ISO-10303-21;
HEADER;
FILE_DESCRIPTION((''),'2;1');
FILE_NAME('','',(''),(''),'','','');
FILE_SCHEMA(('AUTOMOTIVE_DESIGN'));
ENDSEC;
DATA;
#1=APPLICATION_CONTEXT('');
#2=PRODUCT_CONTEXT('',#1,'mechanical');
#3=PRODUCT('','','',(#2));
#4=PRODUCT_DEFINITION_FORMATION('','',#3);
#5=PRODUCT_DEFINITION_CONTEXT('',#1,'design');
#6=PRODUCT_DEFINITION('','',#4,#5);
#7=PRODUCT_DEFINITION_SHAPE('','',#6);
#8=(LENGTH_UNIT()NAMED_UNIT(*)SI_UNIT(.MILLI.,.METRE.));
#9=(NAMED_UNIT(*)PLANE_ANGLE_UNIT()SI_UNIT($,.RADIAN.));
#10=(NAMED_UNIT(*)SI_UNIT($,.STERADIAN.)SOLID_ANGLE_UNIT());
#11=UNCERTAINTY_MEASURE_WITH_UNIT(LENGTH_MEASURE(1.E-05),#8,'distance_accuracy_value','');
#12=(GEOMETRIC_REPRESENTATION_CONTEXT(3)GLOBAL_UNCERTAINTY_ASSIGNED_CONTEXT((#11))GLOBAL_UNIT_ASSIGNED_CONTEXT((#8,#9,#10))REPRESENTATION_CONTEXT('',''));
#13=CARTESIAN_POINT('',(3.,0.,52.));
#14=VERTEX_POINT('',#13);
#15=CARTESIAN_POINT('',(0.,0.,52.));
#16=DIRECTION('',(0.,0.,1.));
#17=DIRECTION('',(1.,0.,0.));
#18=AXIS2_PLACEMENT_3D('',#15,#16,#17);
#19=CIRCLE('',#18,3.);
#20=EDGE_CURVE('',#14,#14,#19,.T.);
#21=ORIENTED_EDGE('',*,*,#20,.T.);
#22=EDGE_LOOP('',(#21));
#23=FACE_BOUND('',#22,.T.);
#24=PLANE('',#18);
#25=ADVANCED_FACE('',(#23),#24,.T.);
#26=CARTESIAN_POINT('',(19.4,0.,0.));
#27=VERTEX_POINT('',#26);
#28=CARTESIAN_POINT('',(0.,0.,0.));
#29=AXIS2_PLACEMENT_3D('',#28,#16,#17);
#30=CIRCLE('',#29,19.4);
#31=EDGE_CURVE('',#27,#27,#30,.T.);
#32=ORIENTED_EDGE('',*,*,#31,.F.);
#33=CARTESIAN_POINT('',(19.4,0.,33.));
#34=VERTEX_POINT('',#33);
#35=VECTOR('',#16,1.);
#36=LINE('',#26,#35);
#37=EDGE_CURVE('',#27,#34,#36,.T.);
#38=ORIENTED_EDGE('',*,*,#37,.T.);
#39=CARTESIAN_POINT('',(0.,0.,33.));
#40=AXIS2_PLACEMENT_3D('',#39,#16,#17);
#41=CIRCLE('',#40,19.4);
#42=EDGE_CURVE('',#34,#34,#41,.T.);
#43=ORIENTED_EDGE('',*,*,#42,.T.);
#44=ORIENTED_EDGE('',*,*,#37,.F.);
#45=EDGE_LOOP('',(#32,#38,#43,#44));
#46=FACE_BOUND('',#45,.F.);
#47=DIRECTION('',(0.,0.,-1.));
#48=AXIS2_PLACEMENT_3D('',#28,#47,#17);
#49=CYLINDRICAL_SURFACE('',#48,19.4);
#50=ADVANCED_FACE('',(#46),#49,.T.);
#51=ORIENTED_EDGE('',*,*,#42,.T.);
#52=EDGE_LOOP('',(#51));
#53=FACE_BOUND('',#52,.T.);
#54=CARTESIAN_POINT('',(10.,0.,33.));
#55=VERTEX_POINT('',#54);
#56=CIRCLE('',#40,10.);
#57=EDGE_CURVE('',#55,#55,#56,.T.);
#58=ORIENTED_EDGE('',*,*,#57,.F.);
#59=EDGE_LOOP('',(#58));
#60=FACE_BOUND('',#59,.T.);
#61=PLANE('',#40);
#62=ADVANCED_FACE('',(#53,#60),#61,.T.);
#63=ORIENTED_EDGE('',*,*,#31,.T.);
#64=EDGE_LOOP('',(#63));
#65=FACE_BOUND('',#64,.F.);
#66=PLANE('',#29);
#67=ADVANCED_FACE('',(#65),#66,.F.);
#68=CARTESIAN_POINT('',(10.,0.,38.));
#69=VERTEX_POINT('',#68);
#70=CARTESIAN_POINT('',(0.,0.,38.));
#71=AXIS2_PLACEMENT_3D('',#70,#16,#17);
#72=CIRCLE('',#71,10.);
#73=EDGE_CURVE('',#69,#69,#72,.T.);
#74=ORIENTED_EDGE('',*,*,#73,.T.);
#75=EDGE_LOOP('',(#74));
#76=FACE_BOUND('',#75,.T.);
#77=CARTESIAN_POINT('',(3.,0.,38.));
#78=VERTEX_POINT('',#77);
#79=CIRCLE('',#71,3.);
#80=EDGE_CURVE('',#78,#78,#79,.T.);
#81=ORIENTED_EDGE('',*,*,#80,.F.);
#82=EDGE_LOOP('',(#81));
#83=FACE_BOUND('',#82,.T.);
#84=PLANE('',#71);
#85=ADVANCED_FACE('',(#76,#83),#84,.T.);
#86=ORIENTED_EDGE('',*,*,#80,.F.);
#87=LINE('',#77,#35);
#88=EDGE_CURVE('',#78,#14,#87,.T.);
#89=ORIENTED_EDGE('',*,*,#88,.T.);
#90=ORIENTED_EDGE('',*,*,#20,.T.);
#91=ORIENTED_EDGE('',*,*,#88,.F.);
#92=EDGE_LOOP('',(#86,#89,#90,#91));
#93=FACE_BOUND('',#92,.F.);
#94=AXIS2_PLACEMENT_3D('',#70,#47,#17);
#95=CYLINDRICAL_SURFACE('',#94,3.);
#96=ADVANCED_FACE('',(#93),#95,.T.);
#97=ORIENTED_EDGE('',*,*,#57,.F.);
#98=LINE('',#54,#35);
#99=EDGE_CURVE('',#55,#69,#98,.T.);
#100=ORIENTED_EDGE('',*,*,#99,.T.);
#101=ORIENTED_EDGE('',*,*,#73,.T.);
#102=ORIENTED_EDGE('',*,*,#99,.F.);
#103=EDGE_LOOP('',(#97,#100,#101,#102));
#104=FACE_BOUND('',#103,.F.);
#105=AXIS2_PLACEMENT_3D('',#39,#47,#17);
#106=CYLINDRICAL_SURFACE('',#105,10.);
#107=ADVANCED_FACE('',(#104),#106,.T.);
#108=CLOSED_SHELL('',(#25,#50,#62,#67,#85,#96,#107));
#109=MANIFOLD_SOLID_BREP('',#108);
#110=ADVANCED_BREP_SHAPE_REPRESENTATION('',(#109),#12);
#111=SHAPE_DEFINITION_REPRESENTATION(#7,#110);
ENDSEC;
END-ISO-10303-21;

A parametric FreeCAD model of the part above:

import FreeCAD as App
import Part
import Sketcher
from FreeCAD import Vector

doc = App.newDocument("Part")
body = doc.addObject("PartDesign::Body", "Body")

sketch1 = doc.addObject("Sketcher::SketchObject", "Sketch")
body.addObject(sketch1)
sketch1.AttachmentSupport = (doc.XY_Plane, [""])
sketch1.MapMode = "FlatFace"
sketch1.addGeometry(Part.Circle(Vector(0, 0, 0), Vector(0, 0, 1), 19), False)
sketch1.addConstraint([
    Sketcher.Constraint("Coincident", 0, 3, -1, 1),
    Sketcher.Constraint("Diameter", 0, 38.8),
])
pad1 = doc.addObject("PartDesign::Pad", "Pad")
body.addObject(pad1)
pad1.Profile = sketch1
pad1.Length = 33

sketch2 = doc.addObject("Sketcher::SketchObject", "Sketch001")
body.addObject(sketch2)
sketch2.AttachmentSupport = (doc.XY_Plane, [""])
sketch2.MapMode = "FlatFace"
sketch2.AttachmentOffset = App.Placement(Vector(0, 0, 33), App.Rotation())
sketch2.addGeometry(Part.Circle(Vector(0, 0, 0), Vector(0, 0, 1), 10), False)
sketch2.addConstraint([
    Sketcher.Constraint("Coincident", 0, 3, -1, 1),
    Sketcher.Constraint("Diameter", 0, 20.0),
])
pad2 = doc.addObject("PartDesign::Pad", "Pad001")
body.addObject(pad2)
pad2.Profile = sketch2
pad2.Length = 5

sketch3 = doc.addObject("Sketcher::SketchObject", "Sketch002")
body.addObject(sketch3)
sketch3.AttachmentSupport = (doc.XY_Plane, [""])
sketch3.MapMode = "FlatFace"
sketch3.AttachmentOffset = App.Placement(Vector(0, 0, 38), App.Rotation())
sketch3.addGeometry(Part.Circle(Vector(0, 0, 0), Vector(0, 0, 1), 3), False)
sketch3.addConstraint([
    Sketcher.Constraint("Coincident", 0, 3, -1, 1),
    Sketcher.Constraint("Diameter", 0, 6.0),
])
pad3 = doc.addObject("PartDesign::Pad", "Pad002")
body.addObject(pad3)
pad3.Profile = sketch3
pad3.Length = 14

doc.recompute()
